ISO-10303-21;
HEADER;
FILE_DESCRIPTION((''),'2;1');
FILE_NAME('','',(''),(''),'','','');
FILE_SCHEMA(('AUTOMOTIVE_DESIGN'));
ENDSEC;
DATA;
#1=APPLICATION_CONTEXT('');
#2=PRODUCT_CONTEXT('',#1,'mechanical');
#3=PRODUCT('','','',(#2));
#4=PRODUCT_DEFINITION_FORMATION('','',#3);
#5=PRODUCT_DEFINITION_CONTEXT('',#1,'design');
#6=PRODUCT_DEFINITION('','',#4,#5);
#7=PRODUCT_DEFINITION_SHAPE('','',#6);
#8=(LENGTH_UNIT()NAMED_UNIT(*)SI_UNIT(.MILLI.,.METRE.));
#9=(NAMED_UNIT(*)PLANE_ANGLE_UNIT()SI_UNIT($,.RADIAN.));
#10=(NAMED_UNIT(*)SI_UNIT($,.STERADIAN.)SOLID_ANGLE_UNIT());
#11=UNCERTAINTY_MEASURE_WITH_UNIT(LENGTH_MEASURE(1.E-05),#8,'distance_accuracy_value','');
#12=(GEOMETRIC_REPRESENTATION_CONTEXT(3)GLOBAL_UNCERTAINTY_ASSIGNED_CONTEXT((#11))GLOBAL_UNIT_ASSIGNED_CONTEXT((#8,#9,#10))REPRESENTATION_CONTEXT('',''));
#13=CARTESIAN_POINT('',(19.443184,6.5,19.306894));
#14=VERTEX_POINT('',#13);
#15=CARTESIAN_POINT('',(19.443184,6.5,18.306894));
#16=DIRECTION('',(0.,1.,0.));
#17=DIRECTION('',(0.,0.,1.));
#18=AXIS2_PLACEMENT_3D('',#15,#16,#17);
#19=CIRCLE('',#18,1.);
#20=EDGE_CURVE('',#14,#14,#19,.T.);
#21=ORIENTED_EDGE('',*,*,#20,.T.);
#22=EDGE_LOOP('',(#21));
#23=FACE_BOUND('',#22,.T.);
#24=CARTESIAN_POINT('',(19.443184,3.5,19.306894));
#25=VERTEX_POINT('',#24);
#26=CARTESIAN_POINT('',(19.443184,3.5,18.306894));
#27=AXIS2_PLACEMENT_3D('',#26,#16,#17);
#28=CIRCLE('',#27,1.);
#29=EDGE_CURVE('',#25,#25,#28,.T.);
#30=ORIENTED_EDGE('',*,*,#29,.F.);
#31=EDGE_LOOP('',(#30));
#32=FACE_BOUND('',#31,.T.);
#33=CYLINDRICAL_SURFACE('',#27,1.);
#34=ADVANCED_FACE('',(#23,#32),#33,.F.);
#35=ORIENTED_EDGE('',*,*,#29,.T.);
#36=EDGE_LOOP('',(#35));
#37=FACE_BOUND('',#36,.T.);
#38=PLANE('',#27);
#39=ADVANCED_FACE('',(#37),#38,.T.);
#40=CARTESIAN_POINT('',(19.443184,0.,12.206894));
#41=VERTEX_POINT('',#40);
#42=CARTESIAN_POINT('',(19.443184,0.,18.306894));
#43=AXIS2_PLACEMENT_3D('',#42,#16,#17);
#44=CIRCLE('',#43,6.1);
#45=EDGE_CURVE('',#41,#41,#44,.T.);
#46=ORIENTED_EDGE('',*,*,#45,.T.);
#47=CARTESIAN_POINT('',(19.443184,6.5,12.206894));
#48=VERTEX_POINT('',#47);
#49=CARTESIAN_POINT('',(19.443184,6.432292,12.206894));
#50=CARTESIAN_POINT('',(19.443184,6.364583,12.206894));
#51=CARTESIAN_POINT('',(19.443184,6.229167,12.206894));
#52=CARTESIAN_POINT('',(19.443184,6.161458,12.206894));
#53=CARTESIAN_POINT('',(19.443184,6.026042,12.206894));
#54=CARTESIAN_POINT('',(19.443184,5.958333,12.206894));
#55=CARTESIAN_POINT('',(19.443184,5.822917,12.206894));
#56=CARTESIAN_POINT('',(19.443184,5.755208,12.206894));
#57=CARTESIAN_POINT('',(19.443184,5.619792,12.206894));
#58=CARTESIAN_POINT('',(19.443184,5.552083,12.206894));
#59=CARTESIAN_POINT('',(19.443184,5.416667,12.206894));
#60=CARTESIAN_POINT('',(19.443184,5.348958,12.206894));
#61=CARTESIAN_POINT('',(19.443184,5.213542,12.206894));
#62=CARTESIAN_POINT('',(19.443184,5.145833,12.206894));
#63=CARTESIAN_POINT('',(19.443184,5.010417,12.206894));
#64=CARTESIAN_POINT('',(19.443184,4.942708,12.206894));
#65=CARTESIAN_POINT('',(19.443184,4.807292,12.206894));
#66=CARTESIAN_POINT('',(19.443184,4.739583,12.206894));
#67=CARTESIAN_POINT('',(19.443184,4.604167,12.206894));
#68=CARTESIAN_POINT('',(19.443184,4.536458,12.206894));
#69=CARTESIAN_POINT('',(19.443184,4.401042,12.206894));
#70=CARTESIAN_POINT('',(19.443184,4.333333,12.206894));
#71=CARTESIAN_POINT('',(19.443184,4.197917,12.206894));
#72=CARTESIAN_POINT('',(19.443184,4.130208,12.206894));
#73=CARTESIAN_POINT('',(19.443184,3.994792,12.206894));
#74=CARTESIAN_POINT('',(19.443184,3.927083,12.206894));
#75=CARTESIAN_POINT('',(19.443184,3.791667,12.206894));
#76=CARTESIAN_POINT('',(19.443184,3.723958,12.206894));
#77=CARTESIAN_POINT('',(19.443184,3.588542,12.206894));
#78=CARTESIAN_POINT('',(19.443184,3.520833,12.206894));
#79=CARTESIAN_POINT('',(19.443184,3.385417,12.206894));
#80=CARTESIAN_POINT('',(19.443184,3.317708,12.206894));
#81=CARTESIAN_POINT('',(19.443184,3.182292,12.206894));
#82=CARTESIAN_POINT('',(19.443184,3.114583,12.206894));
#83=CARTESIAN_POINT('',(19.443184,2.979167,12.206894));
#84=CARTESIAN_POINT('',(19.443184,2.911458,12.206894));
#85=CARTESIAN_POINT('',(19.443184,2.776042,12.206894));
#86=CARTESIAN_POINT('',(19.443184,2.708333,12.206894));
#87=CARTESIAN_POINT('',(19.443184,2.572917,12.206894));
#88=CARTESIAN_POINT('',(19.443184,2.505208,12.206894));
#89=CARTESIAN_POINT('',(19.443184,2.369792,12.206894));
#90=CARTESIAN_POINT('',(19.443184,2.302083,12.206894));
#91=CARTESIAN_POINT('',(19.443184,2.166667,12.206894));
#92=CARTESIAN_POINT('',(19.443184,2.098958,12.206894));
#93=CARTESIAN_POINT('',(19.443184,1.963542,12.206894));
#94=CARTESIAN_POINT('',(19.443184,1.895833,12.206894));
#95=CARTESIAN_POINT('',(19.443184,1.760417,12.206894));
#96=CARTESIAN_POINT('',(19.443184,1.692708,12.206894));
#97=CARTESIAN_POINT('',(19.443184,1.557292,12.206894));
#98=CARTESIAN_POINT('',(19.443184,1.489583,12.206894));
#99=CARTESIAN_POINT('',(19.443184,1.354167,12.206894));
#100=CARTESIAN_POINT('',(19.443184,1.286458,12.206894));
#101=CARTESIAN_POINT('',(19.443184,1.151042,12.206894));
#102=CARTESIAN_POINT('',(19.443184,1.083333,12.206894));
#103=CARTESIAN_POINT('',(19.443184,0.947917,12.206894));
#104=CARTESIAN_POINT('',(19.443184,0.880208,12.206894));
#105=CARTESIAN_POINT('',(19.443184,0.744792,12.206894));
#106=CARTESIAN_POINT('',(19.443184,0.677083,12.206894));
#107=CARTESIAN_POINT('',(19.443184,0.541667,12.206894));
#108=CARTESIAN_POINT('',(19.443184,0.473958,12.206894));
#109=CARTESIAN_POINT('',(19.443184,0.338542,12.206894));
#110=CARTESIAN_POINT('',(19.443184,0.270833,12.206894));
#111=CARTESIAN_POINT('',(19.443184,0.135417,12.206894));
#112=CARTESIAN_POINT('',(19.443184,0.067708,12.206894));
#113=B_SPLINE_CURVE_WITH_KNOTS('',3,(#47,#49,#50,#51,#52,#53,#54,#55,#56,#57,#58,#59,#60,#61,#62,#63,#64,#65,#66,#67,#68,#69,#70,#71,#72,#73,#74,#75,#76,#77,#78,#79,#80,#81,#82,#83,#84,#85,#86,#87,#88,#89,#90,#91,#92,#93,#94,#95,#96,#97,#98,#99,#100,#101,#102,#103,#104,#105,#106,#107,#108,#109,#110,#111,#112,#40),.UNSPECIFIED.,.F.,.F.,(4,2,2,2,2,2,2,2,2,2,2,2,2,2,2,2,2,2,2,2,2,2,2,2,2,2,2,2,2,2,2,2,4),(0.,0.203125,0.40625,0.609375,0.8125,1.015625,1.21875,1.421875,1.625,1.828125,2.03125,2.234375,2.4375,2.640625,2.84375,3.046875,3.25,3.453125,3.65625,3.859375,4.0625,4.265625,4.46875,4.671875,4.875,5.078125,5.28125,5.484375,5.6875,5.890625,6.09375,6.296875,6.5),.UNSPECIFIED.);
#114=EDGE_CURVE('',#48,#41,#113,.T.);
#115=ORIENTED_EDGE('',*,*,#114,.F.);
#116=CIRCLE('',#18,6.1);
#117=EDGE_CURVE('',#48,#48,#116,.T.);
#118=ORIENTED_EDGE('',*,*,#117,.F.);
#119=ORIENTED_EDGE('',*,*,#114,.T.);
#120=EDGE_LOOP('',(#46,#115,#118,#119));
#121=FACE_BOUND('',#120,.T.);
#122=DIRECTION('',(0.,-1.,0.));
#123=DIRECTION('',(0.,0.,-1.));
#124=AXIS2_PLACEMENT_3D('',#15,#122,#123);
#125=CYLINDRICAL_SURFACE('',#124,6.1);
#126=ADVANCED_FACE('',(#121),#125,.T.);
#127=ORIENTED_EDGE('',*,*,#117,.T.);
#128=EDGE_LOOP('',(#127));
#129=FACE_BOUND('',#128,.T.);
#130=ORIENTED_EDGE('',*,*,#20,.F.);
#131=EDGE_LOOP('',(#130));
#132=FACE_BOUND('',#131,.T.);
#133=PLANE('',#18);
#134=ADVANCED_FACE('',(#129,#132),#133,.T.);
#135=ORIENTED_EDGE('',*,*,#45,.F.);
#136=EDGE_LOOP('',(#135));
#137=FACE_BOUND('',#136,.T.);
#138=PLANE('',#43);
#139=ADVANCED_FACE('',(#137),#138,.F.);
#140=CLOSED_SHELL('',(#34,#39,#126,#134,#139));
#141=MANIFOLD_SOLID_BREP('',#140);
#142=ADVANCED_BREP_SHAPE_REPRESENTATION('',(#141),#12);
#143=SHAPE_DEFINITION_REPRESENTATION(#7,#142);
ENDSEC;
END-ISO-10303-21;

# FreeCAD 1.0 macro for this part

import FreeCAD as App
import Part
import Sketcher
from FreeCAD import Vector
Q = App.Units.Quantity

doc = App.newDocument("Part")
body = doc.addObject("PartDesign::Body", "Body")

# Sketch on XZ plane
sketch1 = body.newObject("Sketcher::SketchObject", "Sketch")
sketch1.AttachmentSupport = (doc.getObject("XZ_Plane"), [""])
sketch1.MapMode = "FlatFace"
sketch1.addGeometry(Part.Circle(Vector(19.443184, 18.306894, 0), Vector(0, 0, 1), 6.1), False)
sketch1.addConstraint(Sketcher.Constraint("Diameter", 0, Q("12.2 mm")))
sketch1.addConstraint(Sketcher.Constraint("DistanceX", -1, 1, 0, 3, Q("19.443184 mm")))
sketch1.addConstraint(Sketcher.Constraint("DistanceY", -1, 1, 0, 3, Q("18.306894 mm")))
pad1 = body.newObject("PartDesign::Pad", "Pad")
pad1.Profile = sketch1
pad1.Length = 6.5
pad1.Reversed = True

# Sketch on XZ plane
sketch2 = body.newObject("Sketcher::SketchObject", "Sketch001")
sketch2.AttachmentSupport = (doc.getObject("XZ_Plane"), [""])
sketch2.MapMode = "FlatFace"
sketch2.AttachmentOffset = App.Placement(Vector(0, 0, -6.5), App.Rotation())
sketch2.addGeometry(Part.Circle(Vector(19.443184, 18.306894, 0), Vector(0, 0, 1), 1), False)
sketch2.addConstraint(Sketcher.Constraint("Diameter", 0, Q("2 mm")))
sketch2.addConstraint(Sketcher.Constraint("DistanceX", -1, 1, 0, 3, Q("19.443184 mm")))
sketch2.addConstraint(Sketcher.Constraint("DistanceY", -1, 1, 0, 3, Q("18.306894 mm")))
pocket1 = body.newObject("PartDesign::Pocket", "Pocket")
pocket1.Profile = sketch2
pocket1.Length = 3
pocket1.Reversed = True

doc.recompute()
